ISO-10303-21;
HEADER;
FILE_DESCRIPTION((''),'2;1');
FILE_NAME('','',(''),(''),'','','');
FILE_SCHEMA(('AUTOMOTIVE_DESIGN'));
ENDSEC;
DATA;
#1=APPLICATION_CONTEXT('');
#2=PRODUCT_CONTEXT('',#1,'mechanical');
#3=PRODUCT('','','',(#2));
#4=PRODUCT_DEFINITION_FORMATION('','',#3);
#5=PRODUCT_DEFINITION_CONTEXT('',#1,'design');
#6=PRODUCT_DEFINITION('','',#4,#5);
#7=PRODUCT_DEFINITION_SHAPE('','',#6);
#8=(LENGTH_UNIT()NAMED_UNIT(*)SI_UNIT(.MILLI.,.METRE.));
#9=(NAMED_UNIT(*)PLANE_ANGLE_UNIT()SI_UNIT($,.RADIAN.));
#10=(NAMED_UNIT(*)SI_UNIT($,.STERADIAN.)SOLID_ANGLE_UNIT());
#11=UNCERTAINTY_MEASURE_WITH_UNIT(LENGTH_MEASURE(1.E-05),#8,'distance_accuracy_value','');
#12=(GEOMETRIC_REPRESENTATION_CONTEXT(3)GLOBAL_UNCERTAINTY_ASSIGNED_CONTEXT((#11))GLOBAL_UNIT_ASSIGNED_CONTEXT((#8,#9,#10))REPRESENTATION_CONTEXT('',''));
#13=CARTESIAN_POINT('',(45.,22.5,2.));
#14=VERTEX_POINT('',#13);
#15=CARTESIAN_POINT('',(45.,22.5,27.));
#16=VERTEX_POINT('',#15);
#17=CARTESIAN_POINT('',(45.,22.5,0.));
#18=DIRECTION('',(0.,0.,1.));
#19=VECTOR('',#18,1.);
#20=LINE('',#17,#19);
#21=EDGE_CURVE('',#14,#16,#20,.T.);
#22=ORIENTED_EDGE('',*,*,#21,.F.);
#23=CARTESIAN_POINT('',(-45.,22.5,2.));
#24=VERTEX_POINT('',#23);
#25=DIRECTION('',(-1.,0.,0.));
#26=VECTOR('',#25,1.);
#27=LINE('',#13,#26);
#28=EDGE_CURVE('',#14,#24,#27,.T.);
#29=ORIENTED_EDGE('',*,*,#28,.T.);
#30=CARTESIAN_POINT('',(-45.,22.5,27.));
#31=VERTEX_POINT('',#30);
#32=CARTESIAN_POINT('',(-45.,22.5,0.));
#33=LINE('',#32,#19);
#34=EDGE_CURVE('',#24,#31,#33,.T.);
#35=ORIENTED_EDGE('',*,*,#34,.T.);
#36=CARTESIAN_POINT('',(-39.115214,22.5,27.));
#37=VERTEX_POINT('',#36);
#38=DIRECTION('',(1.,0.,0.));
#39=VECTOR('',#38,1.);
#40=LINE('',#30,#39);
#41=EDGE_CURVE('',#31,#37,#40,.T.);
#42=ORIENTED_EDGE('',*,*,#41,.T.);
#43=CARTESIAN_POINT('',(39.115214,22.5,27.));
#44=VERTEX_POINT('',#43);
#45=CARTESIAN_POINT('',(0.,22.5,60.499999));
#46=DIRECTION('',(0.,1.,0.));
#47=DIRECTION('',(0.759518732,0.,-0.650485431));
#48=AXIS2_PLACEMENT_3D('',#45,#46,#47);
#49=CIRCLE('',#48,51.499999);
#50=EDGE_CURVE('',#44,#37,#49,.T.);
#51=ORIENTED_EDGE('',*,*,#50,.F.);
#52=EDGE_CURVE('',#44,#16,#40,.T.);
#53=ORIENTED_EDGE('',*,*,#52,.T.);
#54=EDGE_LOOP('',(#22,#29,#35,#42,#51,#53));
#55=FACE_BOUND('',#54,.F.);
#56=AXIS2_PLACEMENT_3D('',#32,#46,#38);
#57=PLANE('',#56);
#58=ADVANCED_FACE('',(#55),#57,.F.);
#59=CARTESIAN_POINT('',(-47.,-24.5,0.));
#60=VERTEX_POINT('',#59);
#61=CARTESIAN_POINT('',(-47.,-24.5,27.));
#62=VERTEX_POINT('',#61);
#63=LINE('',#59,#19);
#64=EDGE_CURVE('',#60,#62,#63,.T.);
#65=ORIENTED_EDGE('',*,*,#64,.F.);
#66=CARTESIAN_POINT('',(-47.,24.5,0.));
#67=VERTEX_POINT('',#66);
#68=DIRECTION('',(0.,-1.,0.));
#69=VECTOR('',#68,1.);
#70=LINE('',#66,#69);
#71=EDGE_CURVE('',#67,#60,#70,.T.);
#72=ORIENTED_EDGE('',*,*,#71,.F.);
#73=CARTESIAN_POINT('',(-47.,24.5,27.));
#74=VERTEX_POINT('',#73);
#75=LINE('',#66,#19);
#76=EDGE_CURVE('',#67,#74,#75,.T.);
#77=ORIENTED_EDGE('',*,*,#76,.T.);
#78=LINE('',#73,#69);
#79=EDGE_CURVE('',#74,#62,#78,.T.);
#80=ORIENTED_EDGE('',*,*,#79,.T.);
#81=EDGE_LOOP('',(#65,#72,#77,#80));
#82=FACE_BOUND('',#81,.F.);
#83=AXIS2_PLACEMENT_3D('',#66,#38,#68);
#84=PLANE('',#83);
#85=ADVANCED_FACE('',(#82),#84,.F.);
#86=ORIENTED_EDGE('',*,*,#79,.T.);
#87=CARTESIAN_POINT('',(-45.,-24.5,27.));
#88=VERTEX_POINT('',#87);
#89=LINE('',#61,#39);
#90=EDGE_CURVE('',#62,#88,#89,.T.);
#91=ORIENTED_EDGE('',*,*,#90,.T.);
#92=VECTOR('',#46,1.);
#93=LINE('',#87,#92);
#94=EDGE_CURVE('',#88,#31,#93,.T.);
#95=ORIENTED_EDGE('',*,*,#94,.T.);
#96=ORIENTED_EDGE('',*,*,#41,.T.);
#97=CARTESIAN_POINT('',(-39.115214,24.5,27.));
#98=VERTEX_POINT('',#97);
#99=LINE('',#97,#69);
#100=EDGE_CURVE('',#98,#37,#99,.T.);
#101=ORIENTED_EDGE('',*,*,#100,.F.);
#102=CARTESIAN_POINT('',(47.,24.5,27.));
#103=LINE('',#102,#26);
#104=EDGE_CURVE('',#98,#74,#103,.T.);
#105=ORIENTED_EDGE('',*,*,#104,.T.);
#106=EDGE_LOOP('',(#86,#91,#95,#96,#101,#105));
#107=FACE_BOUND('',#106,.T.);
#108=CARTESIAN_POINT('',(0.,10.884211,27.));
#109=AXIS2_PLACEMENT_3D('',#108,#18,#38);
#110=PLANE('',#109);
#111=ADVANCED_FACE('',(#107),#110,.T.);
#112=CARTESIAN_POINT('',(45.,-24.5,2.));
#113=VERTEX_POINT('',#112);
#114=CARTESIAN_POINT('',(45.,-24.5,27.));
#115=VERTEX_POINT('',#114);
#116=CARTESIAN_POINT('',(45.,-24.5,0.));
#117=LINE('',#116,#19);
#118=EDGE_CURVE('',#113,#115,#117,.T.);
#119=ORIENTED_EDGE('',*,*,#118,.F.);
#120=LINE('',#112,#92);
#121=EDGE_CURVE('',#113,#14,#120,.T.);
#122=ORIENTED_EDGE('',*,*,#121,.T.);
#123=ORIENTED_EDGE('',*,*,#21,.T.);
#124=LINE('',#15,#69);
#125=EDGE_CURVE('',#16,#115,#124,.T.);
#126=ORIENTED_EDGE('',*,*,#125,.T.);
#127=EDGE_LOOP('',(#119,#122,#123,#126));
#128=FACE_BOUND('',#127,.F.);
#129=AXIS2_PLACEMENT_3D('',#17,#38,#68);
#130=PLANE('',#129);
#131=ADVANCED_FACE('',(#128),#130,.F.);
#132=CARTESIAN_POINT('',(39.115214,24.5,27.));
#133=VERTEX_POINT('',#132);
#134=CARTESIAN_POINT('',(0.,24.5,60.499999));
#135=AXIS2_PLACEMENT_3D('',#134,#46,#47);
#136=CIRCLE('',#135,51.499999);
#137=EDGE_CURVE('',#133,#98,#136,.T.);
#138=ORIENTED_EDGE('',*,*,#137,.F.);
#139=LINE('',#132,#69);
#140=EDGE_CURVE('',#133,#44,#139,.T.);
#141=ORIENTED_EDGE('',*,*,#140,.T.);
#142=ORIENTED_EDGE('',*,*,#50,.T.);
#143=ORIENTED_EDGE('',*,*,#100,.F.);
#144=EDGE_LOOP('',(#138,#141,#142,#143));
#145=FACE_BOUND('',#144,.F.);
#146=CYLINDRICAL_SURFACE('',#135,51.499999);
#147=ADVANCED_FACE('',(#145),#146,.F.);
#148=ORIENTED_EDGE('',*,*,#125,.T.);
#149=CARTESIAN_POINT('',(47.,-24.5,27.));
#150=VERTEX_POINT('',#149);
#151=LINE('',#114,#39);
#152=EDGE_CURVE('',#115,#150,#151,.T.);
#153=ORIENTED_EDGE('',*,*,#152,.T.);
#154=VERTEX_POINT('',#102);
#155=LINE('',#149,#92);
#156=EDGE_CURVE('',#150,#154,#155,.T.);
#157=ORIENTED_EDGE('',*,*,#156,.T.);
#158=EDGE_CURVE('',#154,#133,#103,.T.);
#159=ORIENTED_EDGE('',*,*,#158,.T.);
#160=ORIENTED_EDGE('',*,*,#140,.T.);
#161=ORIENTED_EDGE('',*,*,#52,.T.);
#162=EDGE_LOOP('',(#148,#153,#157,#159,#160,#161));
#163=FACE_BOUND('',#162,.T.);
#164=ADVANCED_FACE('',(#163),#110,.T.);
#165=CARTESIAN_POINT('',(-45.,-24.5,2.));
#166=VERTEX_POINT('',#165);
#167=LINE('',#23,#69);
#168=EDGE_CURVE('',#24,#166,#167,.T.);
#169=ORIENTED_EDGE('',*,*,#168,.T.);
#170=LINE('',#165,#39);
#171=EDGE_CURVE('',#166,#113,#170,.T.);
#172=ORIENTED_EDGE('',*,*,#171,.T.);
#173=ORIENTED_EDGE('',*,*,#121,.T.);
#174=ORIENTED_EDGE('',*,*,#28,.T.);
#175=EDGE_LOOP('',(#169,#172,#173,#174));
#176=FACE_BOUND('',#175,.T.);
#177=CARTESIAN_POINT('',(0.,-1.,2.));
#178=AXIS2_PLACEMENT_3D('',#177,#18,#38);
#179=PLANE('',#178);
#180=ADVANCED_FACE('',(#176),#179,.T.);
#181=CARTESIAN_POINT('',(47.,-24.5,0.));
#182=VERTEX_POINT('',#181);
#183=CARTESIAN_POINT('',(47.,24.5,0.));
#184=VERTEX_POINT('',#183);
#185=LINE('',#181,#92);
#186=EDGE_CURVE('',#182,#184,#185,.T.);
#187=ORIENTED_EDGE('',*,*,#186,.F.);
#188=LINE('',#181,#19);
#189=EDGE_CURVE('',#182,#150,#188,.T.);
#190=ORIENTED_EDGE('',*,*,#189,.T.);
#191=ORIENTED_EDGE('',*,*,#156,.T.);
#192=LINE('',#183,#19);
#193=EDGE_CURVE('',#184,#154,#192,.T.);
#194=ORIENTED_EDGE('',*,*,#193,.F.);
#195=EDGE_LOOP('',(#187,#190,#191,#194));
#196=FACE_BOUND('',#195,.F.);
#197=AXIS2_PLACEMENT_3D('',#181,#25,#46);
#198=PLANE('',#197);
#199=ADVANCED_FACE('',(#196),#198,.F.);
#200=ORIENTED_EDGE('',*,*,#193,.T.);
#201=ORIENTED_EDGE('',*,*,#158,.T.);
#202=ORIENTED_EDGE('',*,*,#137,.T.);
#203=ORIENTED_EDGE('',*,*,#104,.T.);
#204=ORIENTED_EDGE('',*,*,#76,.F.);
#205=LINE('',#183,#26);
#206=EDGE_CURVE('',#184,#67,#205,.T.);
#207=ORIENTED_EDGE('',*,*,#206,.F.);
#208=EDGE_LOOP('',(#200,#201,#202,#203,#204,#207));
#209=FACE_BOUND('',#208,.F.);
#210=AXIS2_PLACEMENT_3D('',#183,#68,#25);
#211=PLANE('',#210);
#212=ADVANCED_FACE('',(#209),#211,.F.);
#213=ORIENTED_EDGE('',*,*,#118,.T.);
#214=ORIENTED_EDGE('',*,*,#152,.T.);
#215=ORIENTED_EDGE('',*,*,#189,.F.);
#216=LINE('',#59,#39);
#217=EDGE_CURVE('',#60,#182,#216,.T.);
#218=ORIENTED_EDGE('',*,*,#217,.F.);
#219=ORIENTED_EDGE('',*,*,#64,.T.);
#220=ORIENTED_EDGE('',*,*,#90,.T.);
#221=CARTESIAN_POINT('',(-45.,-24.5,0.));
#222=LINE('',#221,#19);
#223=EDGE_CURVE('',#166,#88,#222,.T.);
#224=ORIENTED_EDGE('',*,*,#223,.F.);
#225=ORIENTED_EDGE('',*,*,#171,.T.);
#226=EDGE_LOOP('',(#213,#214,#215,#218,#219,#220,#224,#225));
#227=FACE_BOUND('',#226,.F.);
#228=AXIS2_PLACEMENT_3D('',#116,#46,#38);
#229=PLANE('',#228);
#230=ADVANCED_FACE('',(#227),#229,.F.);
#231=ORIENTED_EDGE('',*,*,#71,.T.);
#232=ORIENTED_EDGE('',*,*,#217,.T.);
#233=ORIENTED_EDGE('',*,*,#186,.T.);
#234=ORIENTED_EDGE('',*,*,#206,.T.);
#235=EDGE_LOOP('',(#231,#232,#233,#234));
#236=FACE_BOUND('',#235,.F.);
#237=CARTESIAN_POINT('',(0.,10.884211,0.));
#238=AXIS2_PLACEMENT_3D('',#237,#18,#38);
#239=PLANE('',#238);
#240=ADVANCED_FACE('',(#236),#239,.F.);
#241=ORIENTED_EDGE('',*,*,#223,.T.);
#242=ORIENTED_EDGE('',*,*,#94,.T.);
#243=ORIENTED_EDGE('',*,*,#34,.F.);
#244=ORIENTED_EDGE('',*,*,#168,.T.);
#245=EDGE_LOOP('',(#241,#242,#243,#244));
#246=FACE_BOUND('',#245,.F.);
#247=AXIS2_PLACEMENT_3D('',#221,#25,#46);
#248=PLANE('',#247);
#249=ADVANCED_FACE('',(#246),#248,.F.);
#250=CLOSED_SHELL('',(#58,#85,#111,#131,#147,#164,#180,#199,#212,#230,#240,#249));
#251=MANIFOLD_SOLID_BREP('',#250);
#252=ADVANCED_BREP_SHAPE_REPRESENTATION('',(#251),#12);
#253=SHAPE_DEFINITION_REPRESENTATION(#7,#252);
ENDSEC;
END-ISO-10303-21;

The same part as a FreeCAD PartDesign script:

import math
import FreeCAD as App
import Part
import Sketcher
Q = App.Units.Quantity

doc = App.newDocument("Part")
body = doc.addObject("PartDesign::Body", "Body")

sketch1 = doc.addObject("Sketcher::SketchObject", "Sketch")
body.addObject(sketch1)
sketch1.AttachmentSupport = (doc.XY_Plane, [""])
sketch1.MapMode = "FlatFace"
sketch1.addGeometry(Part.LineSegment(App.Vector(-45, -24.5, 0), App.Vector(45, -24.5, 0)), False)
sketch1.addGeometry(Part.LineSegment(App.Vector(45, -24.5, 0), App.Vector(45, 22.5, 0)), False)
sketch1.addGeometry(Part.LineSegment(App.Vector(45, 22.5, 0), App.Vector(-45, 22.5, 0)), False)
sketch1.addGeometry(Part.LineSegment(App.Vector(-45, 22.5, 0), App.Vector(-45, -24.5, 0)), False)
sketch1.addConstraint(Sketcher.Constraint("Coincident", 0, 2, 1, 1))
sketch1.addConstraint(Sketcher.Constraint("Coincident", 1, 2, 2, 1))
sketch1.addConstraint(Sketcher.Constraint("Coincident", 2, 2, 3, 1))
sketch1.addConstraint(Sketcher.Constraint("Coincident", 3, 2, 0, 1))
sketch1.addConstraint(Sketcher.Constraint("Horizontal", 0))
sketch1.addConstraint(Sketcher.Constraint("Vertical", 1))
sketch1.addConstraint(Sketcher.Constraint("Horizontal", 2))
sketch1.addConstraint(Sketcher.Constraint("Vertical", 3))
sketch1.addConstraint(Sketcher.Constraint("DistanceX", 0, 1, 0, 2, Q("90 mm")))
sketch1.addConstraint(Sketcher.Constraint("DistanceY", 1, 1, 1, 2, Q("47 mm")))
sketch1.addConstraint(Sketcher.Constraint("DistanceX", -1, 1, 0, 2, Q("45 mm")))
sketch1.addConstraint(Sketcher.Constraint("DistanceY", 0, 2, -1, 1, Q("24.5 mm")))
pad1 = doc.addObject("PartDesign::Pad", "Pad")
body.addObject(pad1)
pad1.Profile = sketch1
pad1.Length = 2

sketch2 = doc.addObject("Sketcher::SketchObject", "Sketch001")
body.addObject(sketch2)
sketch2.AttachmentSupport = (doc.XY_Plane, [""])
sketch2.MapMode = "FlatFace"
sketch2.addGeometry(Part.LineSegment(App.Vector(47, -24.5, 0), App.Vector(47, 24.5, 0)), False)
sketch2.addGeometry(Part.LineSegment(App.Vector(47, 24.5, 0), App.Vector(-47, 24.5, 0)), False)
sketch2.addGeometry(Part.LineSegment(App.Vector(-47, 24.5, 0), App.Vector(-47, -24.5, 0)), False)
sketch2.addGeometry(Part.LineSegment(App.Vector(-47, -24.5, 0), App.Vector(-45, -24.5, 0)), False)
sketch2.addGeometry(Part.LineSegment(App.Vector(-45, -24.5, 0), App.Vector(-45, 22.5, 0)), False)
sketch2.addGeometry(Part.LineSegment(App.Vector(-45, 22.5, 0), App.Vector(45, 22.5, 0)), False)
sketch2.addGeometry(Part.LineSegment(App.Vector(45, 22.5, 0), App.Vector(45, -24.5, 0)), False)
sketch2.addGeometry(Part.LineSegment(App.Vector(45, -24.5, 0), App.Vector(47, -24.5, 0)), False)
sketch2.addConstraint(Sketcher.Constraint("Coincident", 0, 2, 1, 1))
sketch2.addConstraint(Sketcher.Constraint("Coincident", 1, 2, 2, 1))
sketch2.addConstraint(Sketcher.Constraint("Coincident", 2, 2, 3, 1))
sketch2.addConstraint(Sketcher.Constraint("Coincident", 3, 2, 4, 1))
sketch2.addConstraint(Sketcher.Constraint("Coincident", 4, 2, 5, 1))
sketch2.addConstraint(Sketcher.Constraint("Coincident", 5, 2, 6, 1))
sketch2.addConstraint(Sketcher.Constraint("Coincident", 6, 2, 7, 1))
sketch2.addConstraint(Sketcher.Constraint("Coincident", 7, 2, 0, 1))
sketch2.addConstraint(Sketcher.Constraint("Vertical", 0))
sketch2.addConstraint(Sketcher.Constraint("Horizontal", 1))
sketch2.addConstraint(Sketcher.Constraint("Vertical", 2))
sketch2.addConstraint(Sketcher.Constraint("Horizontal", 3))
sketch2.addConstraint(Sketcher.Constraint("Vertical", 4))
sketch2.addConstraint(Sketcher.Constraint("Horizontal", 5))
sketch2.addConstraint(Sketcher.Constraint("Vertical", 6))
sketch2.addConstraint(Sketcher.Constraint("Horizontal", 7))
sketch2.addConstraint(Sketcher.Constraint("Symmetric", 0, 2, 2, 2, -1, 1))
sketch2.addConstraint(Sketcher.Constraint("Symmetric", 3, 2, 6, 2, -2))
sketch2.addConstraint(Sketcher.Constraint("DistanceX", 1, 2, 1, 1, Q("94 mm")))
sketch2.addConstraint(Sketcher.Constraint("DistanceX", 3, 1, 3, 2, Q("2 mm")))
sketch2.addConstraint(Sketcher.Constraint("DistanceY", 0, 1, 0, 2, Q("49 mm")))
sketch2.addConstraint(Sketcher.Constraint("DistanceY", 4, 1, 4, 2, Q("47 mm")))
pad2 = doc.addObject("PartDesign::Pad", "Pad001")
body.addObject(pad2)
pad2.Profile = sketch2
pad2.Length = 27

sketch3 = doc.addObject("Sketcher::SketchObject", "Sketch002")
body.addObject(sketch3)
sketch3.AttachmentSupport = (doc.XZ_Plane, [""])
sketch3.MapMode = "FlatFace"
sketch3.AttachmentOffset = App.Placement(App.Vector(0, 0, -24.5), App.Rotation())
sketch3.addGeometry(Part.LineSegment(App.Vector(-39.115214, 27, 0), App.Vector(39.115214, 27, 0)), False)
sketch3.addGeometry(Part.ArcOfCircle(Part.Circle(App.Vector(0, 60.499999, 0), App.Vector(0, 0, 1), 51.499999), math.radians(-139.421789), math.radians(-40.578211)), False)
sketch3.addConstraint(Sketcher.Constraint("Coincident", 0, 1, 1, 1))
sketch3.addConstraint(Sketcher.Constraint("Coincident", 1, 2, 0, 2))
sketch3.addConstraint(Sketcher.Constraint("Horizontal", 0))
sketch3.addConstraint(Sketcher.Constraint("PointOnObject", 1, 3, -2))
sketch3.addConstraint(Sketcher.Constraint("Radius", 1, Q("51.499999 mm")))
sketch3.addConstraint(Sketcher.Constraint("DistanceY", -1, 1, 0, 1, Q("27 mm")))
sketch3.addConstraint(Sketcher.Constraint("DistanceY", -1, 1, 1, 3, Q("60.499999 mm")))
pocket1 = doc.addObject("PartDesign::Pocket", "Pocket")
body.addObject(pocket1)
pocket1.Profile = sketch3
pocket1.Length = 25
pocket1.Reversed = True

doc.recompute()
